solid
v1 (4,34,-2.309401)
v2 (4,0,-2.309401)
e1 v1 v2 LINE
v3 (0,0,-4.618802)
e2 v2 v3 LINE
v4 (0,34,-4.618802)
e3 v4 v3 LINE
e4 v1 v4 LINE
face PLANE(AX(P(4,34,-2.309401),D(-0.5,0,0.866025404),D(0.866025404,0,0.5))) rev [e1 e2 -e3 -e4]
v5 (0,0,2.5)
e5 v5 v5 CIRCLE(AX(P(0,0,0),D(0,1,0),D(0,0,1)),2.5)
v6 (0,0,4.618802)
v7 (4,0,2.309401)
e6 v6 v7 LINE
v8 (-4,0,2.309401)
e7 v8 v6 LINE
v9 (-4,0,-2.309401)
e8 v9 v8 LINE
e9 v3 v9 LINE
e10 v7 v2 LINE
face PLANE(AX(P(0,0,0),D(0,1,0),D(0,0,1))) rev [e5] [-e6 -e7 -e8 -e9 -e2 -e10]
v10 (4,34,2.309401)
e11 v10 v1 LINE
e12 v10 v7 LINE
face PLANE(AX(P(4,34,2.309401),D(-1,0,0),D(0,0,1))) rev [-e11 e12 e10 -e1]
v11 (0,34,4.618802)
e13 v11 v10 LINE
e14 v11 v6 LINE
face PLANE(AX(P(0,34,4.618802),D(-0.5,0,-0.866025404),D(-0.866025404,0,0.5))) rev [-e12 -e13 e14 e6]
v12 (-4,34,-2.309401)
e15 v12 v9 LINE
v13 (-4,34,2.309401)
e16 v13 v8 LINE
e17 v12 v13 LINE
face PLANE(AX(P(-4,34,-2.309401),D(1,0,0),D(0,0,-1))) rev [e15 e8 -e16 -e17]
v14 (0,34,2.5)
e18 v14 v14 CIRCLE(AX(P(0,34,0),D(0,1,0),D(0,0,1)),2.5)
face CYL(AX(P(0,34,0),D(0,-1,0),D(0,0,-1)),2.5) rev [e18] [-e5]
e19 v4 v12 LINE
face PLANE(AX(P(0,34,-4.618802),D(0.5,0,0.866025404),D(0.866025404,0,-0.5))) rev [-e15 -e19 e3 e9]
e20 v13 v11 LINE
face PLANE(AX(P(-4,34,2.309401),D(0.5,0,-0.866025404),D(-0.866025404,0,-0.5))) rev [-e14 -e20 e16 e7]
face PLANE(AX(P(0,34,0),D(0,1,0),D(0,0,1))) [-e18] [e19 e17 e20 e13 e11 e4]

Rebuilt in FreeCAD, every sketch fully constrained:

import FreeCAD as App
import Part
import Sketcher

V = App.Vector
Q = App.Units.Quantity

doc = App.newDocument("Part")
body = doc.addObject("PartDesign::Body", "Body")

sketch1 = doc.addObject("Sketcher::SketchObject", "Sketch")
body.addObject(sketch1)
sketch1.AttachmentSupport = (doc.XZ_Plane, [""])
sketch1.MapMode = "FlatFace"
sketch1.addGeometry([
    Part.LineSegment(V(0, -4.6, 0), V(-4, -2.3, 0)),
    Part.LineSegment(V(-4, -2.3, 0), V(-4, 2.3, 0)),
    Part.LineSegment(V(-4, 2.3, 0), V(0, 4.6, 0)),
    Part.LineSegment(V(0, 4.6, 0), V(4, 2.3, 0)),
    Part.LineSegment(V(4, 2.3, 0), V(4, -2.3, 0)),
    Part.LineSegment(V(4, -2.3, 0), V(0, -4.6, 0)),
    Part.Circle(V(0, 0, 0), V(0, 0, 1), 2.5),
], False)
sketch1.addConstraint([
    Sketcher.Constraint("Coincident", 0, 2, 1, 1),
    Sketcher.Constraint("Coincident", 1, 2, 2, 1),
    Sketcher.Constraint("Coincident", 2, 2, 3, 1),
    Sketcher.Constraint("Coincident", 3, 2, 4, 1),
    Sketcher.Constraint("Coincident", 4, 2, 5, 1),
    Sketcher.Constraint("Coincident", 5, 2, 0, 1),
    Sketcher.Constraint("Vertical", 1),
    Sketcher.Constraint("Vertical", 4),
    Sketcher.Constraint("Coincident", 6, 3, -1, 1),
    Sketcher.Constraint("Symmetric", 0, 2, 3, 2, -1, 1),
    Sketcher.Constraint("Symmetric", 2, 2, 5, 2, -1, 1),
    Sketcher.Constraint("PointOnObject", 2, 2, -2),
    Sketcher.Constraint("Parallel", 2, 5),
    Sketcher.Constraint("Horizontal", 1, 2, 3, 2),
    Sketcher.Constraint("Diameter", 6, 5.0),
    Sketcher.Constraint("Angle", 0, Q("150 deg")),
    Sketcher.Constraint("DistanceX", 0, 2, -1, 1, 4.0),
    Sketcher.Constraint("DistanceY", 0, 2, -1, 1, 2.309401),
])
pad1 = doc.addObject("PartDesign::Pad", "Pad")
body.addObject(pad1)
pad1.Profile = sketch1
pad1.Length = 34
pad1.Reversed = True

doc.recompute()
